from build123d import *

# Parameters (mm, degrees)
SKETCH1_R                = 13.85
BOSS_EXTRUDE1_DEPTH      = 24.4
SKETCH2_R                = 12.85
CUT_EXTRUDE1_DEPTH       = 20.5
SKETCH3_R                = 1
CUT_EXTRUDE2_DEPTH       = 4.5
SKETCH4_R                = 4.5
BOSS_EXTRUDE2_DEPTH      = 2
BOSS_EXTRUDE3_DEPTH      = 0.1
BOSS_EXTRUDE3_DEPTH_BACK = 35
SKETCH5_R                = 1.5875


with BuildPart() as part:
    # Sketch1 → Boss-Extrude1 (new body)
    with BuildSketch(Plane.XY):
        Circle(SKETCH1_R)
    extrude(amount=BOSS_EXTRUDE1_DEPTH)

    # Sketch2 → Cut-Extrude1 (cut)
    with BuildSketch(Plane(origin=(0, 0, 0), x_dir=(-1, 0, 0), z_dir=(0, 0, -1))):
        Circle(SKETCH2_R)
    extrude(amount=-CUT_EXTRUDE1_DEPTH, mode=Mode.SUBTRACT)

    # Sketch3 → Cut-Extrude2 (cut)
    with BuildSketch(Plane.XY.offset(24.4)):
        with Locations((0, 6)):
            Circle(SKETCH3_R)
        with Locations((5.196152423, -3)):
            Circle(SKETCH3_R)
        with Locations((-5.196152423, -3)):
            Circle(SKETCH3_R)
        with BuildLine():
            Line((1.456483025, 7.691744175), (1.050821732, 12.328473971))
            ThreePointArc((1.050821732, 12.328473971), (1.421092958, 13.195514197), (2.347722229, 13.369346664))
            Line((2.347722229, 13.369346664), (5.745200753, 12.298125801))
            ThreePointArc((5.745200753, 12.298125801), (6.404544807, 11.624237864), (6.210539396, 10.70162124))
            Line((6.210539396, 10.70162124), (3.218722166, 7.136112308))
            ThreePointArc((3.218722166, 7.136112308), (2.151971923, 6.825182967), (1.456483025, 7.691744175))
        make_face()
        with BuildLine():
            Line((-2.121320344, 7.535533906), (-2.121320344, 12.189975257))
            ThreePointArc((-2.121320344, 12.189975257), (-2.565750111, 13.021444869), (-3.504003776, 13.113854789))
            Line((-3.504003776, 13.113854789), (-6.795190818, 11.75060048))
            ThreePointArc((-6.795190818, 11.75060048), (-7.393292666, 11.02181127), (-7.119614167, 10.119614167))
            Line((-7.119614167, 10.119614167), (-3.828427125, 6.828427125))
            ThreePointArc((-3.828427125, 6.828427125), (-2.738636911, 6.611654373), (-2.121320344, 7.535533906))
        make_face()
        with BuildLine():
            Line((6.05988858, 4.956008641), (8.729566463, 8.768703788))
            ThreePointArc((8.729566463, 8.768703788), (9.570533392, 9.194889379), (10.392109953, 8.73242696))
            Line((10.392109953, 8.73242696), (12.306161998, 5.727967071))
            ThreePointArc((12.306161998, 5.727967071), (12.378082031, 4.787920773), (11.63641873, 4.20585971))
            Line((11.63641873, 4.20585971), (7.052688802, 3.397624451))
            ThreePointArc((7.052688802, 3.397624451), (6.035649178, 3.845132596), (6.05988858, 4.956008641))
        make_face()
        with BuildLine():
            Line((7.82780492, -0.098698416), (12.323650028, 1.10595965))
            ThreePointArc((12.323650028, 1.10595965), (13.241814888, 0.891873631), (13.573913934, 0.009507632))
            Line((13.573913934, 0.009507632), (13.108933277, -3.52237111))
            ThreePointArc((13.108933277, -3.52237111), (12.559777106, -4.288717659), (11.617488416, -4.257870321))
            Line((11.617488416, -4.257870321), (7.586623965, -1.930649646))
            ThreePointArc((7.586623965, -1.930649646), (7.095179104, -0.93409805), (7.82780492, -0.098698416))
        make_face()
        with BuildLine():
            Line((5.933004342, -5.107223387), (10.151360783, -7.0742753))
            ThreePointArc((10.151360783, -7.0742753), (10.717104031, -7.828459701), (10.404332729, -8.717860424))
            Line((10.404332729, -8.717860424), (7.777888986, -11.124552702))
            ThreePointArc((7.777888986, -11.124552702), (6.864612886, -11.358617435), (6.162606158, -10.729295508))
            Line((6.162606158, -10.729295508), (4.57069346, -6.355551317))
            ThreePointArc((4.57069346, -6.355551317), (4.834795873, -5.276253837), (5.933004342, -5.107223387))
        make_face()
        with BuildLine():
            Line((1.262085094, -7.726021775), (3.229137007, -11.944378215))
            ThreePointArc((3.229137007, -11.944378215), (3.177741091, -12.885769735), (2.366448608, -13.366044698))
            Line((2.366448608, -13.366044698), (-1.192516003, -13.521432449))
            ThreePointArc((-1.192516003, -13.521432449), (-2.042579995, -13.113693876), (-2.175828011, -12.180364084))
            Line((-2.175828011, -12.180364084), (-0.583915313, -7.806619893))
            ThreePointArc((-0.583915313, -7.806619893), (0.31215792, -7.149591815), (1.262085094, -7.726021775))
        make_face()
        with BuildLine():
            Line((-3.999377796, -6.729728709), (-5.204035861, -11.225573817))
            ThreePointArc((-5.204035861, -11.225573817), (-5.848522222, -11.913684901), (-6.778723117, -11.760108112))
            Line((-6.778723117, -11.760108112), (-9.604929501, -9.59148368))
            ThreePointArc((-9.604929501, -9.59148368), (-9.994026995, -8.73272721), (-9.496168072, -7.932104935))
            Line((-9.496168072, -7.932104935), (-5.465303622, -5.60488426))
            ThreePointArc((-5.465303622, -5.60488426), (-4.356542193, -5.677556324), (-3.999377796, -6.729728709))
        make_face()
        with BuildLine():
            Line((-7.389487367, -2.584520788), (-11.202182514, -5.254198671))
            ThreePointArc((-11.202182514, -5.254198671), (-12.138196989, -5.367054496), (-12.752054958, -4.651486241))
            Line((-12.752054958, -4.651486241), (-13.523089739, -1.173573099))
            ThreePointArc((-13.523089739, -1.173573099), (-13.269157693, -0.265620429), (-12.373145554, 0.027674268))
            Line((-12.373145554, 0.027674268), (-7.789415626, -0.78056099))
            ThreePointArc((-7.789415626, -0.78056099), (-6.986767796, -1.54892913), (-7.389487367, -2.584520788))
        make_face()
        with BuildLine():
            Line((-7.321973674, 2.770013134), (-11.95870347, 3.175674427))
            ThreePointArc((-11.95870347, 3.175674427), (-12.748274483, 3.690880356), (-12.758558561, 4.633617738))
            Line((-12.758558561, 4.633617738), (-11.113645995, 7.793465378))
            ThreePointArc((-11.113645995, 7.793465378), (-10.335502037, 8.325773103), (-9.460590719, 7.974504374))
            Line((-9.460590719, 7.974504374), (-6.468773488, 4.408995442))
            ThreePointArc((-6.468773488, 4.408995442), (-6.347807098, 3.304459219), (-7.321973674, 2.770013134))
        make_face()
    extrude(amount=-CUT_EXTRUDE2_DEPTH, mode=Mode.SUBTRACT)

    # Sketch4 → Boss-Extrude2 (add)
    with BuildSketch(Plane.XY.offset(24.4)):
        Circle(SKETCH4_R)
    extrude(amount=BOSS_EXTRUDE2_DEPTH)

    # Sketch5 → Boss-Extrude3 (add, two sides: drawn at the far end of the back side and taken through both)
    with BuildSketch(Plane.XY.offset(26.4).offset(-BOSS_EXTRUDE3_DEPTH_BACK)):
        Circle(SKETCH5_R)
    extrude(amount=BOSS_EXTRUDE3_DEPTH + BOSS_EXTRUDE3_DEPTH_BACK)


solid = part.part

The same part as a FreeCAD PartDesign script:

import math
import FreeCAD as App
import Part
import Sketcher
from FreeCAD import Vector
Q = App.Units.Quantity

doc = App.newDocument("Part")
body = doc.addObject("PartDesign::Body", "Body")

sketch1 = body.newObject("Sketcher::SketchObject", "Sketch")
sketch1.AttachmentSupport = (doc.getObject("XY_Plane"), [""])
sketch1.MapMode = "FlatFace"
sketch1.addGeometry(Part.Circle(Vector(0, 0, 0), Vector(0, 0, 1), 14), False)
sketch1.addConstraint([
    Sketcher.Constraint("Coincident", 0, 3, -1, 1),
    Sketcher.Constraint("Diameter", 0, 27.7),
])
pad1 = body.newObject("PartDesign::Pad", "Pad")
pad1.Profile = sketch1
pad1.Length = 24.4

sketch2 = body.newObject("Sketcher::SketchObject", "Sketch001")
sketch2.AttachmentSupport = (doc.getObject("XY_Plane"), [""])
sketch2.MapMode = "FlatFace"
sketch2.addGeometry(Part.Circle(Vector(0, 0, 0), Vector(0, 0, 1), 13), False)
sketch2.addConstraint([
    Sketcher.Constraint("Coincident", 0, 3, -1, 1),
    Sketcher.Constraint("Diameter", 0, 25.7),
])
pocket1 = body.newObject("PartDesign::Pocket", "Pocket")
pocket1.Profile = sketch2
pocket1.Length = 20.5
pocket1.Reversed = True

sketch3 = body.newObject("Sketcher::SketchObject", "Sketch002")
sketch3.AttachmentSupport = (doc.getObject("XY_Plane"), [""])
sketch3.MapMode = "FlatFace"
sketch3.AttachmentOffset = App.Placement(Vector(0, 0, 24.4), App.Rotation())
sketch3.addGeometry([
    Part.Circle(Vector(0, 6, 0), Vector(0, 0, 1), 1),
    Part.Circle(Vector(5.2, -3, 0), Vector(0, 0, 1), 1),
    Part.Circle(Vector(-5.2, -3, 0), Vector(0, 0, 1), 1),
    Part.LineSegment(Vector(1.1, 12.3, 0), Vector(1.5, 7.7, 0)),
    Part.ArcOfCircle(Part.Circle(Vector(2.5, 7.8, 0), Vector(0, 0, 1), 1), math.radians(-175), math.radians(-40)),
    Part.LineSegment(Vector(3.2, 7.1, 0), Vector(6.2, 10.7, 0)),
    Part.ArcOfCircle(Part.Circle(Vector(5.4, 11.3, 0), Vector(0, 0, 1), 1), math.radians(-40), math.radians(72)),
    Part.LineSegment(Vector(5.7, 12.3, 0), Vector(2.3, 13.4, 0)),
    Part.ArcOfCircle(Part.Circle(Vector(2, 12.4, 0), Vector(0, 0, 1), 1), math.radians(72), math.radians(185)),
    Part.LineSegment(Vector(-2.1, 7.5, 0), Vector(-2.1, 12.2, 0)),
    Part.ArcOfCircle(Part.Circle(Vector(-3.1, 12.2, 0), Vector(0, 0, 1), 1), math.radians(0), math.radians(112)),
    Part.LineSegment(Vector(-3.5, 13.1, 0), Vector(-6.8, 11.8, 0)),
    Part.ArcOfCircle(Part.Circle(Vector(-6.4, 10.8, 0), Vector(0, 0, 1), 1), math.radians(112), math.radians(225)),
    Part.LineSegment(Vector(-7.1, 10.1, 0), Vector(-3.8, 6.8, 0)),
    Part.ArcOfCircle(Part.Circle(Vector(-3.1, 7.5, 0), Vector(0, 0, 1), 1), math.radians(-135), math.radians(0)),
    Part.LineSegment(Vector(8.7, 8.8, 0), Vector(6.1, 5, 0)),
    Part.ArcOfCircle(Part.Circle(Vector(6.9, 4.4, 0), Vector(0, 0, 1), 1), math.radians(145), math.radians(280)),
    Part.LineSegment(Vector(7.1, 3.4, 0), Vector(11.6, 4.2, 0)),
    Part.ArcOfCircle(Part.Circle(Vector(11.5, 5.2, 0), Vector(0, 0, 1), 1), math.radians(-80), math.radians(32)),
    Part.LineSegment(Vector(12.3, 5.7, 0), Vector(10.4, 8.7, 0)),
    Part.ArcOfCircle(Part.Circle(Vector(9.5, 8.2, 0), Vector(0, 0, 1), 1), math.radians(32), math.radians(145)),
    Part.LineSegment(Vector(12.3, 1.1, 0), Vector(7.8, -0.1, 0)),
    Part.ArcOfCircle(Part.Circle(Vector(8.1, -1.1, 0), Vector(0, 0, 1), 1), math.radians(105), math.radians(240)),
    Part.LineSegment(Vector(7.6, -1.9, 0), Vector(11.6, -4.3, 0)),
    Part.ArcOfCircle(Part.Circle(Vector(12.1, -3.4, 0), Vector(0, 0, 1), 1), math.radians(-120), math.radians(-7)),
    Part.LineSegment(Vector(13.1, -3.5, 0), Vector(13.6, 0, 0)),
    Part.ArcOfCircle(Part.Circle(Vector(12.6, 0.1, 0), Vector(0, 0, 1), 1), math.radians(-7), math.radians(105)),
    Part.LineSegment(Vector(10.2, -7.1, 0), Vector(5.9, -5.1, 0)),
    Part.ArcOfCircle(Part.Circle(Vector(5.5, -6, 0), Vector(0, 0, 1), 1), math.radians(65), math.radians(200)),
    Part.LineSegment(Vector(4.6, -6.4, 0), Vector(6.2, -10.7, 0)),
    Part.ArcOfCircle(Part.Circle(Vector(7.1, -10.4, 0), Vector(0, 0, 1), 1), math.radians(-160), math.radians(-47)),
    Part.LineSegment(Vector(7.8, -11.1, 0), Vector(10.4, -8.7, 0)),
    Part.ArcOfCircle(Part.Circle(Vector(9.7, -8, 0), Vector(0, 0, 1), 1), math.radians(-47), math.radians(65)),
    Part.LineSegment(Vector(3.2, -11.9, 0), Vector(1.3, -7.7, 0)),
    Part.ArcOfCircle(Part.Circle(Vector(0.4, -8.1, 0), Vector(0, 0, 1), 1), math.radians(25), math.radians(160)),
    Part.LineSegment(Vector(-0.6, -7.8, 0), Vector(-2.2, -12.2, 0)),
    Part.ArcOfCircle(Part.Circle(Vector(-1.2, -12.5, 0), Vector(0, 0, 1), 1), math.radians(160), math.radians(273)),
    Part.LineSegment(Vector(-1.2, -13.5, 0), Vector(2.4, -13.4, 0)),
    Part.ArcOfCircle(Part.Circle(Vector(2.3, -12.4, 0), Vector(0, 0, 1), 1), math.radians(-88), math.radians(25)),
    Part.LineSegment(Vector(-5.2, -11.2, 0), Vector(-4, -6.7, 0)),
    Part.ArcOfCircle(Part.Circle(Vector(-5, -6.5, 0), Vector(0, 0, 1), 1), math.radians(-15), math.radians(120)),
    Part.LineSegment(Vector(-5.5, -5.6, 0), Vector(-9.5, -7.9, 0)),
    Part.ArcOfCircle(Part.Circle(Vector(-9, -8.8, 0), Vector(0, 0, 1), 1), math.radians(120), math.radians(232)),
    Part.LineSegment(Vector(-9.6, -9.6, 0), Vector(-6.8, -11.8, 0)),
    Part.ArcOfCircle(Part.Circle(Vector(-6.2, -11, 0), Vector(0, 0, 1), 1), math.radians(-127), math.radians(-15)),
    Part.LineSegment(Vector(-11.2, -5.3, 0), Vector(-7.4, -2.6, 0)),
    Part.ArcOfCircle(Part.Circle(Vector(-8, -1.8, 0), Vector(0, 0, 1), 1), math.radians(-55), math.radians(80)),
    Part.LineSegment(Vector(-7.8, -0.8, 0), Vector(-12.4, 0, 0)),
    Part.ArcOfCircle(Part.Circle(Vector(-12.5, -1, 0), Vector(0, 0, 1), 1), math.radians(80), math.radians(192)),
    Part.LineSegment(Vector(-13.5, -1.2, 0), Vector(-12.8, -4.7, 0)),
    Part.ArcOfCircle(Part.Circle(Vector(-11.8, -4.4, 0), Vector(0, 0, 1), 1), math.radians(-167), math.radians(-55)),
    Part.LineSegment(Vector(-12, 3.2, 0), Vector(-7.3, 2.8, 0)),
    Part.ArcOfCircle(Part.Circle(Vector(-7.2, 3.8, 0), Vector(0, 0, 1), 1), math.radians(-95), math.radians(40)),
    Part.LineSegment(Vector(-6.5, 4.4, 0), Vector(-9.5, 8, 0)),
    Part.ArcOfCircle(Part.Circle(Vector(-10.2, 7.3, 0), Vector(0, 0, 1), 1), math.radians(40), math.radians(153)),
    Part.LineSegment(Vector(-11.1, 7.8, 0), Vector(-12.8, 4.6, 0)),
    Part.ArcOfCircle(Part.Circle(Vector(-11.9, 4.2, 0), Vector(0, 0, 1), 1), math.radians(153), math.radians(265)),
], False)
sketch3.addConstraint([
    Sketcher.Constraint("Tangent", 3, 2, 4, 1),
    Sketcher.Constraint("Tangent", 4, 2, 5, 1),
    Sketcher.Constraint("Tangent", 5, 2, 6, 1),
    Sketcher.Constraint("Tangent", 6, 2, 7, 1),
    Sketcher.Constraint("Tangent", 7, 2, 8, 1),
    Sketcher.Constraint("Tangent", 8, 2, 3, 1),
    Sketcher.Constraint("Tangent", 9, 2, 10, 1),
    Sketcher.Constraint("Tangent", 10, 2, 11, 1),
    Sketcher.Constraint("Tangent", 11, 2, 12, 1),
    Sketcher.Constraint("Tangent", 12, 2, 13, 1),
    Sketcher.Constraint("Tangent", 13, 2, 14, 1),
    Sketcher.Constraint("Tangent", 14, 2, 9, 1),
    Sketcher.Constraint("Tangent", 15, 2, 16, 1),
    Sketcher.Constraint("Tangent", 16, 2, 17, 1),
    Sketcher.Constraint("Tangent", 17, 2, 18, 1),
    Sketcher.Constraint("Tangent", 18, 2, 19, 1),
    Sketcher.Constraint("Tangent", 19, 2, 20, 1),
    Sketcher.Constraint("Tangent", 20, 2, 15, 1),
    Sketcher.Constraint("Tangent", 21, 2, 22, 1),
    Sketcher.Constraint("Tangent", 22, 2, 23, 1),
    Sketcher.Constraint("Tangent", 23, 2, 24, 1),
    Sketcher.Constraint("Tangent", 24, 2, 25, 1),
    Sketcher.Constraint("Tangent", 25, 2, 26, 1),
    Sketcher.Constraint("Tangent", 26, 2, 21, 1),
    Sketcher.Constraint("Tangent", 27, 2, 28, 1),
    Sketcher.Constraint("Tangent", 28, 2, 29, 1),
    Sketcher.Constraint("Tangent", 29, 2, 30, 1),
    Sketcher.Constraint("Tangent", 30, 2, 31, 1),
    Sketcher.Constraint("Tangent", 31, 2, 32, 1),
    Sketcher.Constraint("Tangent", 32, 2, 27, 1),
    Sketcher.Constraint("Tangent", 33, 2, 34, 1),
    Sketcher.Constraint("Tangent", 34, 2, 35, 1),
    Sketcher.Constraint("Tangent", 35, 2, 36, 1),
    Sketcher.Constraint("Tangent", 36, 2, 37, 1),
    Sketcher.Constraint("Tangent", 37, 2, 38, 1),
    Sketcher.Constraint("Tangent", 38, 2, 33, 1),
    Sketcher.Constraint("Tangent", 39, 2, 40, 1),
    Sketcher.Constraint("Tangent", 40, 2, 41, 1),
    Sketcher.Constraint("Tangent", 41, 2, 42, 1),
    Sketcher.Constraint("Tangent", 42, 2, 43, 1),
    Sketcher.Constraint("Tangent", 43, 2, 44, 1),
    Sketcher.Constraint("Tangent", 44, 2, 39, 1),
    Sketcher.Constraint("Tangent", 45, 2, 46, 1),
    Sketcher.Constraint("Tangent", 46, 2, 47, 1),
    Sketcher.Constraint("Tangent", 47, 2, 48, 1),
    Sketcher.Constraint("Tangent", 48, 2, 49, 1),
    Sketcher.Constraint("Tangent", 49, 2, 50, 1),
    Sketcher.Constraint("Tangent", 50, 2, 45, 1),
    Sketcher.Constraint("Tangent", 51, 2, 52, 1),
    Sketcher.Constraint("Tangent", 52, 2, 53, 1),
    Sketcher.Constraint("Tangent", 53, 2, 54, 1),
    Sketcher.Constraint("Tangent", 54, 2, 55, 1),
    Sketcher.Constraint("Tangent", 55, 2, 56, 1),
    Sketcher.Constraint("Tangent", 56, 2, 51, 1),
    Sketcher.Constraint("Vertical", 9),
    Sketcher.Constraint("Equal", 0, 1),
    Sketcher.Constraint("Equal", 1, 2),
    Sketcher.Constraint("Equal", 2, 4),
    Sketcher.Constraint("Equal", 4, 6),
    Sketcher.Constraint("Equal", 6, 8),
    Sketcher.Constraint("Equal", 8, 10),
    Sketcher.Constraint("Equal", 10, 12),
    Sketcher.Constraint("Equal", 12, 14),
    Sketcher.Constraint("Equal", 14, 16),
    Sketcher.Constraint("Equal", 16, 18),
    Sketcher.Constraint("Equal", 18, 20),
    Sketcher.Constraint("Equal", 20, 22),
    Sketcher.Constraint("Equal", 22, 24),
    Sketcher.Constraint("Equal", 24, 26),
    Sketcher.Constraint("Equal", 26, 28),
    Sketcher.Constraint("Equal", 28, 30),
    Sketcher.Constraint("Equal", 30, 32),
    Sketcher.Constraint("Equal", 32, 34),
    Sketcher.Constraint("Equal", 34, 36),
    Sketcher.Constraint("Equal", 36, 38),
    Sketcher.Constraint("Equal", 38, 40),
    Sketcher.Constraint("Equal", 40, 42),
    Sketcher.Constraint("Equal", 42, 44),
    Sketcher.Constraint("Equal", 44, 46),
    Sketcher.Constraint("Equal", 46, 48),
    Sketcher.Constraint("Equal", 48, 50),
    Sketcher.Constraint("Equal", 50, 52),
    Sketcher.Constraint("Equal", 52, 54),
    Sketcher.Constraint("Equal", 54, 56),
    Sketcher.Constraint("Symmetric", 1, 3, 2, 3, -2),
    Sketcher.Constraint("PointOnObject", 0, 3, -2),
    Sketcher.Constraint("Equal", 3, 5),
    Sketcher.Constraint("Equal", 7, 11),
    Sketcher.Constraint("Equal", 5, 13),
    Sketcher.Constraint("Equal", 13, 15),
    Sketcher.Constraint("Equal", 15, 17),
    Sketcher.Constraint("Equal", 11, 19),
    Sketcher.Constraint("Equal", 17, 21),
    Sketcher.Constraint("Equal", 21, 23),
    Sketcher.Constraint("Equal", 19, 25),
    Sketcher.Constraint("Equal", 23, 27),
    Sketcher.Constraint("Equal", 27, 29),
    Sketcher.Constraint("Equal", 25, 31),
    Sketcher.Constraint("Equal", 29, 33),
    Sketcher.Constraint("Equal", 33, 35),
    Sketcher.Constraint("Equal", 31, 37),
    Sketcher.Constraint("Equal", 35, 39),
    Sketcher.Constraint("Equal", 39, 41),
    Sketcher.Constraint("Equal", 37, 43),
    Sketcher.Constraint("Equal", 41, 45),
    Sketcher.Constraint("Equal", 45, 47),
    Sketcher.Constraint("Equal", 43, 49),
    Sketcher.Constraint("Equal", 47, 51),
    Sketcher.Constraint("Equal", 51, 53),
    Sketcher.Constraint("Equal", 49, 55),
    Sketcher.Constraint("Diameter", 0, 2.0),
    Sketcher.Constraint("Angle", 3, Q("-85 deg")),
    Sketcher.Constraint("Angle", 5, Q("50 deg")),
    Sketcher.Constraint("Angle", 13, Q("-45 deg")),
    Sketcher.Constraint("Angle", 15, Q("-125 deg")),
    Sketcher.Constraint("Angle", 21, Q("-165 deg")),
    Sketcher.Constraint("Angle", 27, Q("155 deg")),
    Sketcher.Constraint("Angle", 33, Q("115 deg")),
    Sketcher.Constraint("Angle", 39, Q("75 deg")),
    Sketcher.Constraint("Angle", 45, Q("35 deg")),
    Sketcher.Constraint("Angle", 51, Q("-5 deg")),
    Sketcher.Constraint("DistanceY", -1, 1, 0, 3, 6.0),
    Sketcher.Constraint("DistanceY", 1, 3, -1, 1, 3.0),
    Sketcher.Constraint("DistanceY", 9, 1, 9, 2, 4.654441),
    Sketcher.Constraint("DistanceY", -1, 1, 4, 3, 7.7789),
    Sketcher.Constraint("DistanceX", -1, 1, 30, 3, 7.102299),
    Sketcher.Constraint("DistanceX", -1, 1, 6, 2, 5.745201),
    Sketcher.Constraint("DistanceY", -1, 1, 11, 2, 11.7506),
    Sketcher.Constraint("DistanceY", 21, 2, -1, 1, 0.098698),
    Sketcher.Constraint("DistanceY", 50, 2, -1, 1, 5.254199),
    Sketcher.Constraint("DistanceX", 10, 3, -1, 1, 3.12132),
    Sketcher.Constraint("DistanceX", -1, 1, 16, 3, 6.879041),
    Sketcher.Constraint("DistanceX", -1, 1, 24, 3, 12.117488),
    Sketcher.Constraint("DistanceY", 28, 3, -1, 1, 6.013531),
    Sketcher.Constraint("DistanceY", 34, 3, -1, 1, 8.14864),
    Sketcher.Constraint("DistanceX", -1, 1, 38, 3, 2.322829),
    Sketcher.Constraint("DistanceY", 40, 3, -1, 1, 6.47091),
    Sketcher.Constraint("DistanceX", 42, 3, -1, 1, 8.996168),
    Sketcher.Constraint("DistanceX", 50, 3, -1, 1, 11.775759),
    Sketcher.Constraint("DistanceY", -1, 1, 56, 3, 4.171869),
    Sketcher.Constraint("DistanceY", -1, 1, 15, 2, 4.956009),
    Sketcher.Constraint("DistanceX", 53, 2, -1, 1, 9.460591),
    Sketcher.Constraint("DistanceX", -1, 1, 1, 3, 5.196152),
])
pocket2 = body.newObject("PartDesign::Pocket", "Pocket001")
pocket2.Profile = sketch3
pocket2.Length = 4.5

sketch4 = body.newObject("Sketcher::SketchObject", "Sketch003")
sketch4.AttachmentSupport = (doc.getObject("XY_Plane"), [""])
sketch4.MapMode = "FlatFace"
sketch4.AttachmentOffset = App.Placement(Vector(0, 0, 24.4), App.Rotation())
sketch4.addGeometry(Part.Circle(Vector(0, 0, 0), Vector(0, 0, 1), 4.5), False)
sketch4.addConstraint([
    Sketcher.Constraint("Coincident", 0, 3, -1, 1),
    Sketcher.Constraint("Diameter", 0, 9.0),
])
pad2 = body.newObject("PartDesign::Pad", "Pad001")
pad2.Profile = sketch4
pad2.Length = 2

sketch5 = body.newObject("Sketcher::SketchObject", "Sketch004")
sketch5.AttachmentSupport = (doc.getObject("XY_Plane"), [""])
sketch5.MapMode = "FlatFace"
sketch5.AttachmentOffset = App.Placement(Vector(0, 0, 26.4), App.Rotation())
sketch5.addGeometry(Part.Circle(Vector(0, 0, 0), Vector(0, 0, 1), 1.6), False)
sketch5.addConstraint([
    Sketcher.Constraint("Coincident", 0, 3, -1, 1),
    Sketcher.Constraint("Diameter", 0, 3.175),
])
pad3 = body.newObject("PartDesign::Pad", "Pad002")
pad3.Profile = sketch5
pad3.Type = "TwoLengths"
pad3.Length = 0.1
pad3.Length2 = 35

doc.recompute()
